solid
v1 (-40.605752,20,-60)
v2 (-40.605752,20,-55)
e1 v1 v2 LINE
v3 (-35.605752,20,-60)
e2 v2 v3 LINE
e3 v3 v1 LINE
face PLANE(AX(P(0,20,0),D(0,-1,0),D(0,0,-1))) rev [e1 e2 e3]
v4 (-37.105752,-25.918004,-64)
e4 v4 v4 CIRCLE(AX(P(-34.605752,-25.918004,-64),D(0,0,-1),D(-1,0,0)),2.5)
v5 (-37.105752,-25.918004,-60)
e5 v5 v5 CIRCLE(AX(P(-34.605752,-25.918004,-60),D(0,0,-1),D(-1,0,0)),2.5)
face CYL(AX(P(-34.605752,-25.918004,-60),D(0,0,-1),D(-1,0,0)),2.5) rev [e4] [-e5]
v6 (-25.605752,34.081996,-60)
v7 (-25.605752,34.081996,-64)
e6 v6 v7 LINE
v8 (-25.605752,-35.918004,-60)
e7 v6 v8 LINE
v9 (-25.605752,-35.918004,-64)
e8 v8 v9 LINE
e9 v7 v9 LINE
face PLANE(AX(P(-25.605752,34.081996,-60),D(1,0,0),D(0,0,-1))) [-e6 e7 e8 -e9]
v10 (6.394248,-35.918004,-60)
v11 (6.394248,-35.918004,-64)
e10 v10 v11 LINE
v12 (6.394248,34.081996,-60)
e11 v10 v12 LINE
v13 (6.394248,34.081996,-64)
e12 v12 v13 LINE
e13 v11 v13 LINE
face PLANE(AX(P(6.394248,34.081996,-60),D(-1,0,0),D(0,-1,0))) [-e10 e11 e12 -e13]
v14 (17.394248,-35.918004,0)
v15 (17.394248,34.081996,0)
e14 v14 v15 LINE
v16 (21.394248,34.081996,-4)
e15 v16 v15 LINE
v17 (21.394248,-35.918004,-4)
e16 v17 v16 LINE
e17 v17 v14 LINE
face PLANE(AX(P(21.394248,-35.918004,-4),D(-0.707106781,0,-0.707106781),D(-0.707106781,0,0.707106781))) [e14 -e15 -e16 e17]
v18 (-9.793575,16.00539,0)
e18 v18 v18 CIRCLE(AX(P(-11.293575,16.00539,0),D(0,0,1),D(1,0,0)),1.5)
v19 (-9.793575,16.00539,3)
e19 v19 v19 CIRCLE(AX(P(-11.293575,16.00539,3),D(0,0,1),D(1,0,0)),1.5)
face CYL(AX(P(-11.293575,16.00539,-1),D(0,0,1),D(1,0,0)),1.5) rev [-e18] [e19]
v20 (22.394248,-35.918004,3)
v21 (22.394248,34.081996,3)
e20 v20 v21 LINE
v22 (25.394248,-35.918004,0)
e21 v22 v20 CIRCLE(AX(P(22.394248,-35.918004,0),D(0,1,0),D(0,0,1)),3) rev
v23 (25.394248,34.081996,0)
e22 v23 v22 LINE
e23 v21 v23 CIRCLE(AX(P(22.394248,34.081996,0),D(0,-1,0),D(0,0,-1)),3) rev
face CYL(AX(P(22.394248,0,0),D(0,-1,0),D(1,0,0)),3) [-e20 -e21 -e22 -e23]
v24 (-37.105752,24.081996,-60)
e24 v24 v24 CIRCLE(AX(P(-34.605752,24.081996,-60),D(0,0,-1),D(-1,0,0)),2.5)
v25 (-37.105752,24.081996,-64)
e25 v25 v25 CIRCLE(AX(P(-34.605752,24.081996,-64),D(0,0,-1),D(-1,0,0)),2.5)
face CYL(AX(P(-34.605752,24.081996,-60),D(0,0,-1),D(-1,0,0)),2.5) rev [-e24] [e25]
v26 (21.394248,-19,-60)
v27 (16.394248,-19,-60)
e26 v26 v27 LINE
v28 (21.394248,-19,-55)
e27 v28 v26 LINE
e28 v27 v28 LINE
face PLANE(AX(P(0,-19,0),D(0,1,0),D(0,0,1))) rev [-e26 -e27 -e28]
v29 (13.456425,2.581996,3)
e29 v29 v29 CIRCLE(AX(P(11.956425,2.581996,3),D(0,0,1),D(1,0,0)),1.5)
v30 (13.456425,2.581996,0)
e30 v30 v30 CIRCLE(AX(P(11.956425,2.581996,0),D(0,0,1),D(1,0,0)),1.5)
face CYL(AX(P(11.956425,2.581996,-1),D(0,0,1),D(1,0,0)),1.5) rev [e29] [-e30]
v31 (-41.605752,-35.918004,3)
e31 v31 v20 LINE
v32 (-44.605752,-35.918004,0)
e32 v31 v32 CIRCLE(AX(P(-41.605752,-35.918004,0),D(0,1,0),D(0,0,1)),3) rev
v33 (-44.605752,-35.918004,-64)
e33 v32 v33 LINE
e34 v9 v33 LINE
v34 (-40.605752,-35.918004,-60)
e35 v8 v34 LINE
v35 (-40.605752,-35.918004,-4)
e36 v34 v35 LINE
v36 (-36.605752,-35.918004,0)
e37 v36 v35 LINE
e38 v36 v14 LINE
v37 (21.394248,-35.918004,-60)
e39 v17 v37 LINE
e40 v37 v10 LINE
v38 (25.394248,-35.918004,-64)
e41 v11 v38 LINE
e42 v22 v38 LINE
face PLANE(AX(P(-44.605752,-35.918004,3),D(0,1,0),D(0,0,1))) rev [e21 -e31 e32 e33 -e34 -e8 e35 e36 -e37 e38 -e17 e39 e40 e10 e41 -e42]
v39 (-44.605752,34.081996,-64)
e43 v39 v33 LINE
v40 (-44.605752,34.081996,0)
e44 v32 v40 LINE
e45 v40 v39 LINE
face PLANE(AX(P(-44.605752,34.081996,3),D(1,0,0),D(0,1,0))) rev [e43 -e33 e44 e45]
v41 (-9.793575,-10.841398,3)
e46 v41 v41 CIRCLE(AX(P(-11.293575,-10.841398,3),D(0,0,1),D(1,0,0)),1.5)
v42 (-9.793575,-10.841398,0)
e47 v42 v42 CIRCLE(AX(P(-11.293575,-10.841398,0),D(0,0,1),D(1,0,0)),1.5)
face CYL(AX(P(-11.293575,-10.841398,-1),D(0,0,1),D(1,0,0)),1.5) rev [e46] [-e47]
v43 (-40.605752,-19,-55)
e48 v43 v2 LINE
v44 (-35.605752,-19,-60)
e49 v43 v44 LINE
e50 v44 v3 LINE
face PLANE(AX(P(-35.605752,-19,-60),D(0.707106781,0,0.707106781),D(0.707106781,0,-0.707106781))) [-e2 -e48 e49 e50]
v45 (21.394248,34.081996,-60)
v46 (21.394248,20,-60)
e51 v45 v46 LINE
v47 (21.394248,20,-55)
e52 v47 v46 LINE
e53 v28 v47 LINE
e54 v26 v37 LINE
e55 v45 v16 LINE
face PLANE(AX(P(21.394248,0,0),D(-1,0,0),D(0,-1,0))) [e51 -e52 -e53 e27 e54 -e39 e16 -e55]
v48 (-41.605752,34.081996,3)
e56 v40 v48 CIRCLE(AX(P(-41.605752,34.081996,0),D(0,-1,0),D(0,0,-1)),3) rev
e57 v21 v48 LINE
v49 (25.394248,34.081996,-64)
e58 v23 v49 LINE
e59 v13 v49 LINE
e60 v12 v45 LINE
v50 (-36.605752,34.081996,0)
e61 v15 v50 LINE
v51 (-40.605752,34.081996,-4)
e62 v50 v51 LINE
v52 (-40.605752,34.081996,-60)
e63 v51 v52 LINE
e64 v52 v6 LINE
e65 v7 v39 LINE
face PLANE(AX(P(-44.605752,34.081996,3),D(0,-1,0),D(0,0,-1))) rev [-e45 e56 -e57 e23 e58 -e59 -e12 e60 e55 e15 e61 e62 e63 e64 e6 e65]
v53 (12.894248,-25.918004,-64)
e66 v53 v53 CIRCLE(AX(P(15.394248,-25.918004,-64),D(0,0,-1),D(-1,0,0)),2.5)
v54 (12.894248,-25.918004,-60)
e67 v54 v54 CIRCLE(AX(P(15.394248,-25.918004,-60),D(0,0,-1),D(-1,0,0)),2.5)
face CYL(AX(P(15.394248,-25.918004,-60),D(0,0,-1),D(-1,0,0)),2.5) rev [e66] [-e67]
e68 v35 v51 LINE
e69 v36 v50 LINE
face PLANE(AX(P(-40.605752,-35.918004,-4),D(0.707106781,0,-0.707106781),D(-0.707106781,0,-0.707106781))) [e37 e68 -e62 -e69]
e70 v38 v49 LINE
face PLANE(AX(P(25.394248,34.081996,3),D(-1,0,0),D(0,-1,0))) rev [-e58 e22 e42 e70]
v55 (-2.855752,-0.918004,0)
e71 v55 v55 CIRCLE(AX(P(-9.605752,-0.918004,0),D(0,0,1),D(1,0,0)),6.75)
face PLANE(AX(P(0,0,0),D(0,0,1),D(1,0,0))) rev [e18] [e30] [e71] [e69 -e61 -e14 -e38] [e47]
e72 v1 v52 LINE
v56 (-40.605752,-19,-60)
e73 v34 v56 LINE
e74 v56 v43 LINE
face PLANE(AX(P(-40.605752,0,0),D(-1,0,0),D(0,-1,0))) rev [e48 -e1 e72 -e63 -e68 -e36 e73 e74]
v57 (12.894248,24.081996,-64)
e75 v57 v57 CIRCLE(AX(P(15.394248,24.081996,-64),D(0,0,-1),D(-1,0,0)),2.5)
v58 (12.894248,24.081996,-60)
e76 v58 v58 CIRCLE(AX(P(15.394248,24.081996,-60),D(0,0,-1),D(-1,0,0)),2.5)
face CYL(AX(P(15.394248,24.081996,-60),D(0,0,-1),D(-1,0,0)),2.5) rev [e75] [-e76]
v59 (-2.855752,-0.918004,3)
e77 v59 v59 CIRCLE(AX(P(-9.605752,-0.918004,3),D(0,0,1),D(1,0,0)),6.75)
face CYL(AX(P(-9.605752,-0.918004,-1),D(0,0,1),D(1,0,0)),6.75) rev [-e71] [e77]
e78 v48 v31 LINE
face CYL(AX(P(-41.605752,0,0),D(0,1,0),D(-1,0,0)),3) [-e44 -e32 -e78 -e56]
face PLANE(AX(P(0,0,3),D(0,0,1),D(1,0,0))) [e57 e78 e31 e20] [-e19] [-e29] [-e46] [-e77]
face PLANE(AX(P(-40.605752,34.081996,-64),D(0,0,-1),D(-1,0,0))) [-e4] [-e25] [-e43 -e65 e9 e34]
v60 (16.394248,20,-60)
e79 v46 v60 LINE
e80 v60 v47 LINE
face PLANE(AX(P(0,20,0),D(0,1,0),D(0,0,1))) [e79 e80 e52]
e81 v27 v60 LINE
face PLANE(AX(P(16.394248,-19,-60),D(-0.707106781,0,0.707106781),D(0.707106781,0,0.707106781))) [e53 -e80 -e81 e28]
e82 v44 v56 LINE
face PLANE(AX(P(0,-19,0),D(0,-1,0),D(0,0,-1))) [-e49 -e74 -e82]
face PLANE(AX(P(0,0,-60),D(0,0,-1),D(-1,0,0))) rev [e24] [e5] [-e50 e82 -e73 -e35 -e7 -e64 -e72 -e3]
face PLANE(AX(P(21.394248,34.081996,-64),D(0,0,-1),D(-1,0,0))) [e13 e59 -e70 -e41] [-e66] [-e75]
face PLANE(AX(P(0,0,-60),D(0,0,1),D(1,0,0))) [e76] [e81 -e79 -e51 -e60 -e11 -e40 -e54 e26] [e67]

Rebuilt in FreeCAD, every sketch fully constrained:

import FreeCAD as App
import Part
import Sketcher

V = App.Vector


def edges_at(feature, points):
    """Names of the edges that pass closest to the given points."""
    edges = feature.Shape.Edges
    near = lambda p: min(range(len(edges)), key=lambda i: edges[i].distToShape(Part.Vertex(*p))[0])
    return sorted({f"Edge{near(p) + 1}" for p in points})


def add_polygon(sketch, points):
    """Adds a closed chain of lines whose ends are joined by coincident constraints."""
    first, n = sketch.GeometryCount, len(points)
    for a, b in zip(points, points[1:] + points[:1]):
        sketch.addGeometry(Part.LineSegment(App.Vector(*a, 0), App.Vector(*b, 0)), False)
    for i in range(n):
        sketch.addConstraint(Sketcher.Constraint("Coincident", first + i, 2, first + (i + 1) % n, 1))

doc = App.newDocument("Part")
body = doc.addObject("PartDesign::Body", "Body")

sketch1 = body.newObject("Sketcher::SketchObject", "Sketch")
sketch1.AttachmentSupport = (doc.getObject("XY_Plane"), [""])
sketch1.MapMode = "FlatFace"
add_polygon(sketch1, [(-44.605752, 34.081996), (-44.605752, -35.918004), (25.394248, -35.918004), (25.394248, 34.081996)])
sketch1.addConstraint([
    Sketcher.Constraint("Vertical", 0),
    Sketcher.Constraint("Horizontal", 1),
    Sketcher.Constraint("Vertical", 2),
    Sketcher.Constraint("Horizontal", 3),
    Sketcher.Constraint("Equal", 3, 0),
    Sketcher.Constraint("DistanceX", 1, 1, 1, 2, 70.0),
    Sketcher.Constraint("DistanceX", 0, 2, -1, 1, 44.605752),
    Sketcher.Constraint("DistanceY", 0, 2, -1, 1, 35.918004),
])
pad1 = body.newObject("PartDesign::Pad", "Pad")
pad1.Profile = sketch1
pad1.Length = 3

sketch2 = body.newObject("Sketcher::SketchObject", "Sketch001")
sketch2.AttachmentSupport = (doc.getObject("XY_Plane"), [""])
sketch2.MapMode = "FlatFace"
sketch2.AttachmentOffset = App.Placement(V(0, 0, 3), App.Rotation())
sketch2.addGeometry([
    Part.Circle(V(-9.605752, -0.918004, 0), V(0, 0, 1), 6.75),
    Part.Circle(V(-11.293575, 16.00539, 0), V(0, 0, 1), 1.5),
    Part.Circle(V(11.956425, 2.581996, 0), V(0, 0, 1), 1.5),
    Part.Circle(V(-11.293575, -10.841398, 0), V(0, 0, 1), 1.5),
], False)
sketch2.addConstraint([
    Sketcher.Constraint("Equal", 1, 2),
    Sketcher.Constraint("Equal", 2, 3),
    Sketcher.Constraint("Vertical", 1, 3, 3, 3),
    Sketcher.Constraint("Diameter", 1, 3.0),
    Sketcher.Constraint("Diameter", 0, 13.5),
    Sketcher.Constraint("DistanceY", 0, 3, 2, 3, 3.5),
    Sketcher.Constraint("DistanceX", 1, 3, 2, 3, 23.25),
    Sketcher.Constraint("DistanceY", -1, 1, 1, 3, 16.00539),
    Sketcher.Constraint("DistanceX", 0, 3, -1, 1, 9.605752),
    Sketcher.Constraint("DistanceY", 0, 3, -1, 1, 0.918004),
    Sketcher.Constraint("DistanceX", 1, 3, -1, 1, 11.293575),
    Sketcher.Constraint("DistanceY", 3, 3, -1, 1, 10.841398),
])
pocket1 = body.newObject("PartDesign::Pocket", "Pocket")
pocket1.Profile = sketch2
pocket1.Length = 4

sketch3 = body.newObject("Sketcher::SketchObject", "Sketch002")
sketch3.AttachmentSupport = (doc.getObject("YZ_Plane"), [""])
sketch3.MapMode = "FlatFace"
sketch3.AttachmentOffset = App.Placement(V(0, 0, 25.394248), App.Rotation())
add_polygon(sketch3, [(34.081996, 0), (-35.918004, 0), (-35.918004, -64), (34.081996, -64)])
sketch3.addConstraint([
    Sketcher.Constraint("Horizontal", 0),
    Sketcher.Constraint("Vertical", 1),
    Sketcher.Constraint("Horizontal", 2),
    Sketcher.Constraint("Vertical", 3),
    Sketcher.Constraint("PointOnObject", 0, 2, -1),
    Sketcher.Constraint("DistanceX", 0, 2, 0, 1, 70.0),
    Sketcher.Constraint("DistanceY", 1, 2, 1, 1, 64.0),
    Sketcher.Constraint("DistanceX", 0, 2, -1, 1, 35.918004),
])
pad2 = body.newObject("PartDesign::Pad", "Pad001")
pad2.Profile = sketch3
pad2.Length = 4
pad2.Reversed = True

sketch4 = body.newObject("Sketcher::SketchObject", "Sketch003")
sketch4.AttachmentSupport = (doc.getObject("YZ_Plane"), [""])
sketch4.MapMode = "FlatFace"
sketch4.AttachmentOffset = App.Placement(V(0, 0, -44.605752), App.Rotation())
add_polygon(sketch4, [(34.081996, -64), (-35.918004, -64), (-35.918004, 0), (34.081996, 0)])
sketch4.addConstraint([
    Sketcher.Constraint("Horizontal", 0),
    Sketcher.Constraint("Vertical", 1),
    Sketcher.Constraint("Horizontal", 2),
    Sketcher.Constraint("Vertical", 3),
    Sketcher.Constraint("PointOnObject", 1, 2, -1),
    Sketcher.Constraint("DistanceX", 0, 2, 0, 1, 70.0),
    Sketcher.Constraint("DistanceY", 1, 1, 1, 2, 64.0),
    Sketcher.Constraint("DistanceX", 0, 2, -1, 1, 35.918004),
])
pad3 = body.newObject("PartDesign::Pad", "Pad002")
pad3.Profile = sketch4
pad3.Length = 4

sketch5 = body.newObject("Sketcher::SketchObject", "Sketch004")
sketch5.AttachmentSupport = (doc.getObject("XY_Plane"), [""])
sketch5.MapMode = "FlatFace"
sketch5.AttachmentOffset = App.Placement(V(0, 0, -64), App.Rotation())
add_polygon(sketch5, [(21.394248, 34.081996), (21.394248, -35.918004), (6.394248, -35.918004), (6.394248, 34.081996)])
add_polygon(sketch5, [(-25.605752, 34.081996), (-25.605752, -35.918004), (-40.605752, -35.918004), (-40.605752, 34.081996)])
sketch5.addConstraint([
    Sketcher.Constraint("Vertical", 0),
    Sketcher.Constraint("Horizontal", 1),
    Sketcher.Constraint("Vertical", 2),
    Sketcher.Constraint("Horizontal", 3),
    Sketcher.Constraint("Vertical", 4),
    Sketcher.Constraint("Horizontal", 5),
    Sketcher.Constraint("Vertical", 6),
    Sketcher.Constraint("Horizontal", 7),
    Sketcher.Constraint("Horizontal", 1, 2, 4, 2),
    Sketcher.Constraint("Horizontal", 3, 2, 6, 2),
    Sketcher.Constraint("Equal", 3, 5),
    Sketcher.Constraint("DistanceX", 1, 2, 1, 1, 15.0),
    Sketcher.Constraint("DistanceY", 0, 2, 0, 1, 70.0),
    Sketcher.Constraint("DistanceX", 4, 2, 1, 2, 32.0),
    Sketcher.Constraint("DistanceX", -1, 1, 0, 2, 21.394248),
    Sketcher.Constraint("DistanceY", 0, 2, -1, 1, 35.918004),
])
pad4 = body.newObject("PartDesign::Pad", "Pad003")
pad4.Profile = sketch5
pad4.Length = 4

sketch6 = body.newObject("Sketcher::SketchObject", "Sketch005")
sketch6.AttachmentSupport = (doc.getObject("XY_Plane"), [""])
sketch6.MapMode = "FlatFace"
sketch6.AttachmentOffset = App.Placement(V(0, 0, -64), App.Rotation())
sketch6.addGeometry([
    Part.Circle(V(15.394248, 24.081996, 0), V(0, 0, 1), 2.5),
    Part.Circle(V(15.394248, -25.918004, 0), V(0, 0, 1), 2.5),
    Part.Circle(V(-34.605752, 24.081996, 0), V(0, 0, 1), 2.5),
    Part.Circle(V(-34.605752, -25.918004, 0), V(0, 0, 1), 2.5),
], False)
sketch6.addConstraint([
    Sketcher.Constraint("Equal", 0, 1),
    Sketcher.Constraint("Equal", 1, 2),
    Sketcher.Constraint("Equal", 2, 3),
    Sketcher.Constraint("Horizontal", 0, 3, 2, 3),
    Sketcher.Constraint("Horizontal", 1, 3, 3, 3),
    Sketcher.Constraint("Vertical", 0, 3, 1, 3),
    Sketcher.Constraint("Vertical", 2, 3, 3, 3),
    Sketcher.Constraint("Diameter", 0, 5.0),
    Sketcher.Constraint("DistanceY", 1, 3, 0, 3, 50.0),
    Sketcher.Constraint("DistanceX", 2, 3, 0, 3, 50.0),
    Sketcher.Constraint("DistanceX", -1, 1, 0, 3, 15.394248),
    Sketcher.Constraint("DistanceY", -1, 1, 0, 3, 24.081996),
])
pocket2 = body.newObject("PartDesign::Pocket", "Pocket001")
pocket2.Profile = sketch6
pocket2.Length = 4
pocket2.Reversed = True

sketch7 = body.newObject("Sketcher::SketchObject", "Sketch006")
sketch7.AttachmentSupport = (doc.getObject("XZ_Plane"), [""])
sketch7.MapMode = "FlatFace"
sketch7.AttachmentOffset = App.Placement(V(0, 0, -34.081996), App.Rotation())
add_polygon(sketch7, [(-40.605752, -4), (-40.605752, 0), (-36.605752, 0)])
add_polygon(sketch7, [(21.394248, 0), (21.394248, -4), (17.394248, 0)])
sketch7.addConstraint([
    Sketcher.Constraint("Vertical", 0),
    Sketcher.Constraint("Horizontal", 1),
    Sketcher.Constraint("Vertical", 3),
    Sketcher.Constraint("Horizontal", 5),
    Sketcher.Constraint("PointOnObject", 0, 2, -1),
    Sketcher.Constraint("PointOnObject", 4, 2, -1),
    Sketcher.Constraint("Perpendicular", 2, 4),
    Sketcher.Constraint("Horizontal", 2, 2, 3, 2),
    Sketcher.Constraint("Equal", 1, 5),
    Sketcher.Constraint("DistanceX", 1, 1, 1, 2, 4.0),
    Sketcher.Constraint("DistanceX", 1, 2, 3, 2, 58.0),
    Sketcher.Constraint("DistanceX", 0, 2, -1, 1, 40.605752),
])
pad5 = body.newObject("PartDesign::Pad", "Pad004")
pad5.Profile = sketch7
pad5.Length = 70

sketch8 = body.newObject("Sketcher::SketchObject", "Sketch007")
sketch8.AttachmentSupport = (doc.getObject("XZ_Plane"), [""])
sketch8.MapMode = "FlatFace"
add_polygon(sketch8, [(-35.605752, -60), (-40.605752, -60), (-40.605752, -55)])
add_polygon(sketch8, [(21.394248, -60), (16.394248, -60), (21.394248, -55)])
sketch8.addConstraint([
    Sketcher.Constraint("Horizontal", 0),
    Sketcher.Constraint("Vertical", 1),
    Sketcher.Constraint("Horizontal", 3),
    Sketcher.Constraint("Vertical", 5),
    Sketcher.Constraint("Perpendicular", 2, 4),
    Sketcher.Constraint("Horizontal", 2, 2, 3, 2),
    Sketcher.Constraint("Horizontal", 1, 2, 4, 2),
    Sketcher.Constraint("Equal", 0, 3),
    Sketcher.Constraint("DistanceX", 0, 2, 0, 1, 5.0),
    Sketcher.Constraint("DistanceY", 0, 2, -1, 1, 60.0),
    Sketcher.Constraint("DistanceX", 2, 2, 3, 2, 52.0),
    Sketcher.Constraint("DistanceX", 0, 2, -1, 1, 40.605752),
])
pad6 = body.newObject("PartDesign::Pad", "Pad005")
pad6.Profile = sketch8
pad6.Type = "TwoLengths"
pad6.Length = 20
pad6.Length2 = 19
pad6.Reversed = True
doc.recompute()

fillet = body.newObject("PartDesign::Fillet", "Fillet")
fillet.Base = (pad6, edges_at(pad6, [(25.394, -0.918, 3), (-44.606, -0.918, 3)]))
fillet.Radius = 3

doc.recompute()
